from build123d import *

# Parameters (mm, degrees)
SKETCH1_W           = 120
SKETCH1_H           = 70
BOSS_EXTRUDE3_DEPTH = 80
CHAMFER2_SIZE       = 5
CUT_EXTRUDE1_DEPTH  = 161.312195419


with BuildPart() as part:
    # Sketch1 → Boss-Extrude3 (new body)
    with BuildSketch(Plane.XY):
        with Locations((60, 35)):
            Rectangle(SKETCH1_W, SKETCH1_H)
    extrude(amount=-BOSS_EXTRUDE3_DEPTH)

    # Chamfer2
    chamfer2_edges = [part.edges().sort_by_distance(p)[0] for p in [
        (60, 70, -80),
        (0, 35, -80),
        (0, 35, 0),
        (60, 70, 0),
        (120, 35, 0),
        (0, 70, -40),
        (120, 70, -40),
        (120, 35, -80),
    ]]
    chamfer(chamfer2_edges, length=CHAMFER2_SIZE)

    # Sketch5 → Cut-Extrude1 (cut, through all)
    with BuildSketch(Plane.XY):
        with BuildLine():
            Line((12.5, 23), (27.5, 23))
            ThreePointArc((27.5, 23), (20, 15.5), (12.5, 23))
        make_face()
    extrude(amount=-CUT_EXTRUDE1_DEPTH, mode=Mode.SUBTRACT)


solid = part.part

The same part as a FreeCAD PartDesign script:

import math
import FreeCAD as App
import Part
import Sketcher
from FreeCAD import Vector
Q = App.Units.Quantity


def edges_at(feature, points):
    """Names of the edges that pass closest to the given points."""
    edges = feature.Shape.Edges
    near = lambda p: min(range(len(edges)), key=lambda i: edges[i].distToShape(Part.Vertex(*p))[0])
    return sorted({f"Edge{near(p) + 1}" for p in points})

doc = App.newDocument("Part")
body = doc.addObject("PartDesign::Body", "Body")

# Sketch on XY plane
sketch1 = body.newObject("Sketcher::SketchObject", "Sketch")
sketch1.AttachmentSupport = (doc.getObject("XY_Plane"), [""])
sketch1.MapMode = "FlatFace"
sketch1.addGeometry([
    Part.LineSegment(Vector(0, 70, 0), Vector(0, 0, 0)),
    Part.LineSegment(Vector(0, 0, 0), Vector(120, 0, 0)),
    Part.LineSegment(Vector(120, 0, 0), Vector(120, 70, 0)),
    Part.LineSegment(Vector(120, 70, 0), Vector(0, 70, 0)),
], False)
sketch1.addConstraint([
    Sketcher.Constraint("Coincident", 0, 2, 1, 1),
    Sketcher.Constraint("Coincident", 1, 2, 2, 1),
    Sketcher.Constraint("Coincident", 2, 2, 3, 1),
    Sketcher.Constraint("Coincident", 3, 2, 0, 1),
    Sketcher.Constraint("Vertical", 0),
    Sketcher.Constraint("Horizontal", 1),
    Sketcher.Constraint("Vertical", 2),
    Sketcher.Constraint("Horizontal", 3),
    Sketcher.Constraint("Coincident", 0, 2, -1, 1),
    Sketcher.Constraint("DistanceX", 1, 1, 1, 2, Q("120 mm")),
    Sketcher.Constraint("DistanceY", 0, 2, 0, 1, Q("70 mm")),
])
pad1 = body.newObject("PartDesign::Pad", "Pad")
pad1.Profile = sketch1
pad1.Length = 80
pad1.Reversed = True
doc.recompute()

chamfer = body.newObject("PartDesign::Chamfer", "Chamfer")
chamfer.Base = (pad1, edges_at(pad1, [
    (60, 70, -80),
    (0, 35, -80),
    (0, 35, 0),
    (60, 70, 0),
    (120, 35, 0),
    (0, 70, -40),
    (120, 70, -40),
    (120, 35, -80),
]))
chamfer.Size = 5

# Sketch on XY plane
sketch2 = body.newObject("Sketcher::SketchObject", "Sketch001")
sketch2.AttachmentSupport = (doc.getObject("XY_Plane"), [""])
sketch2.MapMode = "FlatFace"
sketch2.addGeometry([
    Part.LineSegment(Vector(28, 23, 0), Vector(12, 23, 0)),
    Part.ArcOfCircle(Part.Circle(Vector(20, 23, 0), Vector(0, 0, 1), 8), math.radians(180), math.radians(360)),
], False)
sketch2.addConstraint([
    Sketcher.Constraint("Coincident", 0, 1, 1, 2),
    Sketcher.Constraint("Coincident", 1, 1, 0, 2),
    Sketcher.Constraint("Horizontal", 0),
    Sketcher.Constraint("Horizontal", 1, 3, 0, 1),
    Sketcher.Constraint("Radius", 1, Q("7.5 mm")),
    Sketcher.Constraint("DistanceX", -1, 1, 1, 3, Q("20 mm")),
    Sketcher.Constraint("DistanceY", -1, 1, 1, 3, Q("23 mm")),
])
pocket1 = body.newObject("PartDesign::Pocket", "Pocket")
pocket1.Profile = sketch2
pocket1.Type = "ThroughAll"

doc.recompute()
